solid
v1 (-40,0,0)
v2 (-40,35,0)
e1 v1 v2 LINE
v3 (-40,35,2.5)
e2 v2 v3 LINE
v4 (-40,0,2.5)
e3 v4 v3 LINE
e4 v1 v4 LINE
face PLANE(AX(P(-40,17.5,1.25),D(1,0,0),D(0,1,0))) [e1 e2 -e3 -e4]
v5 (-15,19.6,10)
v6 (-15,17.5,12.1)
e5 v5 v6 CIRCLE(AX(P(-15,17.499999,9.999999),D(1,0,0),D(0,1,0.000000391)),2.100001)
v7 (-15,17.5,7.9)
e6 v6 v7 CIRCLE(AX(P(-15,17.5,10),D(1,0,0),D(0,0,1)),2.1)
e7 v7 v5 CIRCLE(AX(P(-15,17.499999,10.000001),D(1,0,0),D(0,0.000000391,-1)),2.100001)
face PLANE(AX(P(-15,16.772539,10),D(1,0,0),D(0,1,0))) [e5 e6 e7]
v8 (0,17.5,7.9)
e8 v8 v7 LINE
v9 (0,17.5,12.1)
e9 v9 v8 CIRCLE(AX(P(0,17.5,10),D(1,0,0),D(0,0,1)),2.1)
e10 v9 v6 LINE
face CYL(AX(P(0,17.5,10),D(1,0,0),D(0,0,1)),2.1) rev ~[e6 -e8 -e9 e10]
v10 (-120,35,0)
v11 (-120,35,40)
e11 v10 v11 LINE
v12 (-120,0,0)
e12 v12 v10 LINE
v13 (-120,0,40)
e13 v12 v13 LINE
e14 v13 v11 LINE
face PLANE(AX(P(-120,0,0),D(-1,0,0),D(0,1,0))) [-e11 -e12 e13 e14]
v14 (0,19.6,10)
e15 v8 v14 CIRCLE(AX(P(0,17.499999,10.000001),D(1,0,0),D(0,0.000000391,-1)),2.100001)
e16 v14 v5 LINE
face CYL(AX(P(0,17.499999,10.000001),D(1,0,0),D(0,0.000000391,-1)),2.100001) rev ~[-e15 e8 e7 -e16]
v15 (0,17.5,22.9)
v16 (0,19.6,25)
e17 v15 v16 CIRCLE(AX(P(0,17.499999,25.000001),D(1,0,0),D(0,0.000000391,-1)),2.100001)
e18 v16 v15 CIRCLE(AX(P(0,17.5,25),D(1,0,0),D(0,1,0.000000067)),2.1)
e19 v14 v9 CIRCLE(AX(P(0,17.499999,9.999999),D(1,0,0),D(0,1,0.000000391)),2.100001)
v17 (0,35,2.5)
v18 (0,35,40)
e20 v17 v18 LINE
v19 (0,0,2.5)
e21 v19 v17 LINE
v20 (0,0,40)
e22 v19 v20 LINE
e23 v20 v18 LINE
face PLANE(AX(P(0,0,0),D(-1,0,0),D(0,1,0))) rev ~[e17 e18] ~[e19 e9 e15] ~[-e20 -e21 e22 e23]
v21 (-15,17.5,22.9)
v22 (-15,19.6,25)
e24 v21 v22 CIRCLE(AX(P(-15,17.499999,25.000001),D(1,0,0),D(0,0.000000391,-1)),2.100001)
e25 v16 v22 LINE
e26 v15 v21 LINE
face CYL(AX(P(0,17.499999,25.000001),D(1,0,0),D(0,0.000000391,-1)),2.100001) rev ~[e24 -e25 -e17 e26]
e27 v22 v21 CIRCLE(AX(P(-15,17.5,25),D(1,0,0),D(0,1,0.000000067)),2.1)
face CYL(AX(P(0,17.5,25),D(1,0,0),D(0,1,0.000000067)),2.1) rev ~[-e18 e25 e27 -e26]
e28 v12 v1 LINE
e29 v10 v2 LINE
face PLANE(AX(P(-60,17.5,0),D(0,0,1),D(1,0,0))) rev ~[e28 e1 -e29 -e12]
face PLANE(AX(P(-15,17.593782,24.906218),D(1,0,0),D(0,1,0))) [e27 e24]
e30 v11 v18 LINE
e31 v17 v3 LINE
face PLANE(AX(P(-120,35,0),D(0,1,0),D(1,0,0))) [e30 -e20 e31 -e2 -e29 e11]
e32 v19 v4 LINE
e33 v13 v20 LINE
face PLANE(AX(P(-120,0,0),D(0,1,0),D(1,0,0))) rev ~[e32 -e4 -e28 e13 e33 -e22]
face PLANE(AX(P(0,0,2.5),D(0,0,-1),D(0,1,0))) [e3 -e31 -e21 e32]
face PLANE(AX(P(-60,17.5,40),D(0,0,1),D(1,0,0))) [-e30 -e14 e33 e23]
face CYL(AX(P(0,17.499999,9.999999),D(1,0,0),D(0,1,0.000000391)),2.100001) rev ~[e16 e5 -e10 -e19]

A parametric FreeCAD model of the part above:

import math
import FreeCAD as App
import Part
import Sketcher

V = App.Vector


def add_polygon(sketch, points):
    """Adds a closed chain of lines whose ends are joined by coincident constraints."""
    first, n = sketch.GeometryCount, len(points)
    for a, b in zip(points, points[1:] + points[:1]):
        sketch.addGeometry(Part.LineSegment(App.Vector(*a, 0), App.Vector(*b, 0)), False)
    for i in range(n):
        sketch.addConstraint(Sketcher.Constraint("Coincident", first + i, 2, first + (i + 1) % n, 1))

doc = App.newDocument("Part")
body = doc.addObject("PartDesign::Body", "Body")

sketch1 = body.newObject("Sketcher::SketchObject", "Sketch")
sketch1.AttachmentSupport = (doc.getObject("XY_Plane"), [""])
sketch1.MapMode = "FlatFace"
add_polygon(sketch1, [(-120, 35), (-120, 0), (0, 0), (0, 35)])
sketch1.addConstraint([
    Sketcher.Constraint("Vertical", 0),
    Sketcher.Constraint("Horizontal", 1),
    Sketcher.Constraint("Vertical", 2),
    Sketcher.Constraint("Horizontal", 3),
    Sketcher.Constraint("Coincident", 1, 2, -1, 1),
    Sketcher.Constraint("DistanceX", 1, 1, 1, 2, 120.0),
    Sketcher.Constraint("DistanceY", 0, 2, 0, 1, 35.0),
])
pad1 = body.newObject("PartDesign::Pad", "Pad")
pad1.Profile = sketch1
pad1.Length = 40

sketch2 = body.newObject("Sketcher::SketchObject", "Sketch001")
sketch2.AttachmentSupport = (doc.getObject("YZ_Plane"), [""])
sketch2.MapMode = "FlatFace"
sketch2.addGeometry([
    Part.ArcOfCircle(Part.Circle(V(17.5, 10, 0), V(0, 0, 1), 2.1), math.radians(90), math.radians(270)),
    Part.ArcOfCircle(Part.Circle(V(17.5, 10, 0), V(0, 0, 1), 2.1), math.radians(-90), math.radians(0)),
    Part.ArcOfCircle(Part.Circle(V(17.5, 10, 0), V(0, 0, 1), 2.1), math.radians(0), math.radians(90)),
    Part.ArcOfCircle(Part.Circle(V(17.5, 25, 0), V(0, 0, 1), 2.1), math.radians(0), math.radians(270)),
    Part.ArcOfCircle(Part.Circle(V(17.5, 25, 0), V(0, 0, 1), 2.1), math.radians(-90), math.radians(0)),
], False)
sketch2.addConstraint([
    Sketcher.Constraint("Tangent", 0, 2, 1, 1),
    Sketcher.Constraint("Tangent", 1, 2, 2, 1),
    Sketcher.Constraint("Tangent", 2, 2, 0, 1),
    Sketcher.Constraint("Tangent", 3, 1, 4, 2),
    Sketcher.Constraint("Coincident", 4, 1, 3, 2),
    Sketcher.Constraint("Equal", 2, 3),
    Sketcher.Constraint("Horizontal", 2, 3, 1, 2),
    Sketcher.Constraint("Horizontal", 4, 3, 3, 1),
    Sketcher.Constraint("Vertical", 2, 3, 3, 3),
    Sketcher.Constraint("Vertical", 4, 3, 0, 2),
    Sketcher.Constraint("Vertical", 0, 2, 2, 2),
    Sketcher.Constraint("Vertical", 2, 2, 4, 1),
    Sketcher.Constraint("Radius", 0, 2.1),
    Sketcher.Constraint("DistanceY", -1, 1, 0, 3, 10.0),
    Sketcher.Constraint("DistanceY", -1, 1, 3, 3, 25.0),
    Sketcher.Constraint("DistanceX", -1, 1, 0, 3, 17.5),
])
pocket1 = body.newObject("PartDesign::Pocket", "Pocket")
pocket1.Profile = sketch2
pocket1.Length = 15

sketch3 = body.newObject("Sketcher::SketchObject", "Sketch002")
sketch3.AttachmentSupport = (doc.getObject("YZ_Plane"), [""])
sketch3.MapMode = "FlatFace"
add_polygon(sketch3, [(0, 2.5), (0, 0), (35, 0), (35, 2.5)])
sketch3.addConstraint([
    Sketcher.Constraint("Vertical", 0),
    Sketcher.Constraint("Horizontal", 1),
    Sketcher.Constraint("Vertical", 2),
    Sketcher.Constraint("Horizontal", 3),
    Sketcher.Constraint("Coincident", 0, 2, -1, 1),
    Sketcher.Constraint("DistanceX", 1, 1, 1, 2, 35.0),
    Sketcher.Constraint("DistanceY", 0, 2, 0, 1, 2.5),
])
pocket2 = body.newObject("PartDesign::Pocket", "Pocket001")
pocket2.Profile = sketch3
pocket2.Length = 40

doc.recompute()
